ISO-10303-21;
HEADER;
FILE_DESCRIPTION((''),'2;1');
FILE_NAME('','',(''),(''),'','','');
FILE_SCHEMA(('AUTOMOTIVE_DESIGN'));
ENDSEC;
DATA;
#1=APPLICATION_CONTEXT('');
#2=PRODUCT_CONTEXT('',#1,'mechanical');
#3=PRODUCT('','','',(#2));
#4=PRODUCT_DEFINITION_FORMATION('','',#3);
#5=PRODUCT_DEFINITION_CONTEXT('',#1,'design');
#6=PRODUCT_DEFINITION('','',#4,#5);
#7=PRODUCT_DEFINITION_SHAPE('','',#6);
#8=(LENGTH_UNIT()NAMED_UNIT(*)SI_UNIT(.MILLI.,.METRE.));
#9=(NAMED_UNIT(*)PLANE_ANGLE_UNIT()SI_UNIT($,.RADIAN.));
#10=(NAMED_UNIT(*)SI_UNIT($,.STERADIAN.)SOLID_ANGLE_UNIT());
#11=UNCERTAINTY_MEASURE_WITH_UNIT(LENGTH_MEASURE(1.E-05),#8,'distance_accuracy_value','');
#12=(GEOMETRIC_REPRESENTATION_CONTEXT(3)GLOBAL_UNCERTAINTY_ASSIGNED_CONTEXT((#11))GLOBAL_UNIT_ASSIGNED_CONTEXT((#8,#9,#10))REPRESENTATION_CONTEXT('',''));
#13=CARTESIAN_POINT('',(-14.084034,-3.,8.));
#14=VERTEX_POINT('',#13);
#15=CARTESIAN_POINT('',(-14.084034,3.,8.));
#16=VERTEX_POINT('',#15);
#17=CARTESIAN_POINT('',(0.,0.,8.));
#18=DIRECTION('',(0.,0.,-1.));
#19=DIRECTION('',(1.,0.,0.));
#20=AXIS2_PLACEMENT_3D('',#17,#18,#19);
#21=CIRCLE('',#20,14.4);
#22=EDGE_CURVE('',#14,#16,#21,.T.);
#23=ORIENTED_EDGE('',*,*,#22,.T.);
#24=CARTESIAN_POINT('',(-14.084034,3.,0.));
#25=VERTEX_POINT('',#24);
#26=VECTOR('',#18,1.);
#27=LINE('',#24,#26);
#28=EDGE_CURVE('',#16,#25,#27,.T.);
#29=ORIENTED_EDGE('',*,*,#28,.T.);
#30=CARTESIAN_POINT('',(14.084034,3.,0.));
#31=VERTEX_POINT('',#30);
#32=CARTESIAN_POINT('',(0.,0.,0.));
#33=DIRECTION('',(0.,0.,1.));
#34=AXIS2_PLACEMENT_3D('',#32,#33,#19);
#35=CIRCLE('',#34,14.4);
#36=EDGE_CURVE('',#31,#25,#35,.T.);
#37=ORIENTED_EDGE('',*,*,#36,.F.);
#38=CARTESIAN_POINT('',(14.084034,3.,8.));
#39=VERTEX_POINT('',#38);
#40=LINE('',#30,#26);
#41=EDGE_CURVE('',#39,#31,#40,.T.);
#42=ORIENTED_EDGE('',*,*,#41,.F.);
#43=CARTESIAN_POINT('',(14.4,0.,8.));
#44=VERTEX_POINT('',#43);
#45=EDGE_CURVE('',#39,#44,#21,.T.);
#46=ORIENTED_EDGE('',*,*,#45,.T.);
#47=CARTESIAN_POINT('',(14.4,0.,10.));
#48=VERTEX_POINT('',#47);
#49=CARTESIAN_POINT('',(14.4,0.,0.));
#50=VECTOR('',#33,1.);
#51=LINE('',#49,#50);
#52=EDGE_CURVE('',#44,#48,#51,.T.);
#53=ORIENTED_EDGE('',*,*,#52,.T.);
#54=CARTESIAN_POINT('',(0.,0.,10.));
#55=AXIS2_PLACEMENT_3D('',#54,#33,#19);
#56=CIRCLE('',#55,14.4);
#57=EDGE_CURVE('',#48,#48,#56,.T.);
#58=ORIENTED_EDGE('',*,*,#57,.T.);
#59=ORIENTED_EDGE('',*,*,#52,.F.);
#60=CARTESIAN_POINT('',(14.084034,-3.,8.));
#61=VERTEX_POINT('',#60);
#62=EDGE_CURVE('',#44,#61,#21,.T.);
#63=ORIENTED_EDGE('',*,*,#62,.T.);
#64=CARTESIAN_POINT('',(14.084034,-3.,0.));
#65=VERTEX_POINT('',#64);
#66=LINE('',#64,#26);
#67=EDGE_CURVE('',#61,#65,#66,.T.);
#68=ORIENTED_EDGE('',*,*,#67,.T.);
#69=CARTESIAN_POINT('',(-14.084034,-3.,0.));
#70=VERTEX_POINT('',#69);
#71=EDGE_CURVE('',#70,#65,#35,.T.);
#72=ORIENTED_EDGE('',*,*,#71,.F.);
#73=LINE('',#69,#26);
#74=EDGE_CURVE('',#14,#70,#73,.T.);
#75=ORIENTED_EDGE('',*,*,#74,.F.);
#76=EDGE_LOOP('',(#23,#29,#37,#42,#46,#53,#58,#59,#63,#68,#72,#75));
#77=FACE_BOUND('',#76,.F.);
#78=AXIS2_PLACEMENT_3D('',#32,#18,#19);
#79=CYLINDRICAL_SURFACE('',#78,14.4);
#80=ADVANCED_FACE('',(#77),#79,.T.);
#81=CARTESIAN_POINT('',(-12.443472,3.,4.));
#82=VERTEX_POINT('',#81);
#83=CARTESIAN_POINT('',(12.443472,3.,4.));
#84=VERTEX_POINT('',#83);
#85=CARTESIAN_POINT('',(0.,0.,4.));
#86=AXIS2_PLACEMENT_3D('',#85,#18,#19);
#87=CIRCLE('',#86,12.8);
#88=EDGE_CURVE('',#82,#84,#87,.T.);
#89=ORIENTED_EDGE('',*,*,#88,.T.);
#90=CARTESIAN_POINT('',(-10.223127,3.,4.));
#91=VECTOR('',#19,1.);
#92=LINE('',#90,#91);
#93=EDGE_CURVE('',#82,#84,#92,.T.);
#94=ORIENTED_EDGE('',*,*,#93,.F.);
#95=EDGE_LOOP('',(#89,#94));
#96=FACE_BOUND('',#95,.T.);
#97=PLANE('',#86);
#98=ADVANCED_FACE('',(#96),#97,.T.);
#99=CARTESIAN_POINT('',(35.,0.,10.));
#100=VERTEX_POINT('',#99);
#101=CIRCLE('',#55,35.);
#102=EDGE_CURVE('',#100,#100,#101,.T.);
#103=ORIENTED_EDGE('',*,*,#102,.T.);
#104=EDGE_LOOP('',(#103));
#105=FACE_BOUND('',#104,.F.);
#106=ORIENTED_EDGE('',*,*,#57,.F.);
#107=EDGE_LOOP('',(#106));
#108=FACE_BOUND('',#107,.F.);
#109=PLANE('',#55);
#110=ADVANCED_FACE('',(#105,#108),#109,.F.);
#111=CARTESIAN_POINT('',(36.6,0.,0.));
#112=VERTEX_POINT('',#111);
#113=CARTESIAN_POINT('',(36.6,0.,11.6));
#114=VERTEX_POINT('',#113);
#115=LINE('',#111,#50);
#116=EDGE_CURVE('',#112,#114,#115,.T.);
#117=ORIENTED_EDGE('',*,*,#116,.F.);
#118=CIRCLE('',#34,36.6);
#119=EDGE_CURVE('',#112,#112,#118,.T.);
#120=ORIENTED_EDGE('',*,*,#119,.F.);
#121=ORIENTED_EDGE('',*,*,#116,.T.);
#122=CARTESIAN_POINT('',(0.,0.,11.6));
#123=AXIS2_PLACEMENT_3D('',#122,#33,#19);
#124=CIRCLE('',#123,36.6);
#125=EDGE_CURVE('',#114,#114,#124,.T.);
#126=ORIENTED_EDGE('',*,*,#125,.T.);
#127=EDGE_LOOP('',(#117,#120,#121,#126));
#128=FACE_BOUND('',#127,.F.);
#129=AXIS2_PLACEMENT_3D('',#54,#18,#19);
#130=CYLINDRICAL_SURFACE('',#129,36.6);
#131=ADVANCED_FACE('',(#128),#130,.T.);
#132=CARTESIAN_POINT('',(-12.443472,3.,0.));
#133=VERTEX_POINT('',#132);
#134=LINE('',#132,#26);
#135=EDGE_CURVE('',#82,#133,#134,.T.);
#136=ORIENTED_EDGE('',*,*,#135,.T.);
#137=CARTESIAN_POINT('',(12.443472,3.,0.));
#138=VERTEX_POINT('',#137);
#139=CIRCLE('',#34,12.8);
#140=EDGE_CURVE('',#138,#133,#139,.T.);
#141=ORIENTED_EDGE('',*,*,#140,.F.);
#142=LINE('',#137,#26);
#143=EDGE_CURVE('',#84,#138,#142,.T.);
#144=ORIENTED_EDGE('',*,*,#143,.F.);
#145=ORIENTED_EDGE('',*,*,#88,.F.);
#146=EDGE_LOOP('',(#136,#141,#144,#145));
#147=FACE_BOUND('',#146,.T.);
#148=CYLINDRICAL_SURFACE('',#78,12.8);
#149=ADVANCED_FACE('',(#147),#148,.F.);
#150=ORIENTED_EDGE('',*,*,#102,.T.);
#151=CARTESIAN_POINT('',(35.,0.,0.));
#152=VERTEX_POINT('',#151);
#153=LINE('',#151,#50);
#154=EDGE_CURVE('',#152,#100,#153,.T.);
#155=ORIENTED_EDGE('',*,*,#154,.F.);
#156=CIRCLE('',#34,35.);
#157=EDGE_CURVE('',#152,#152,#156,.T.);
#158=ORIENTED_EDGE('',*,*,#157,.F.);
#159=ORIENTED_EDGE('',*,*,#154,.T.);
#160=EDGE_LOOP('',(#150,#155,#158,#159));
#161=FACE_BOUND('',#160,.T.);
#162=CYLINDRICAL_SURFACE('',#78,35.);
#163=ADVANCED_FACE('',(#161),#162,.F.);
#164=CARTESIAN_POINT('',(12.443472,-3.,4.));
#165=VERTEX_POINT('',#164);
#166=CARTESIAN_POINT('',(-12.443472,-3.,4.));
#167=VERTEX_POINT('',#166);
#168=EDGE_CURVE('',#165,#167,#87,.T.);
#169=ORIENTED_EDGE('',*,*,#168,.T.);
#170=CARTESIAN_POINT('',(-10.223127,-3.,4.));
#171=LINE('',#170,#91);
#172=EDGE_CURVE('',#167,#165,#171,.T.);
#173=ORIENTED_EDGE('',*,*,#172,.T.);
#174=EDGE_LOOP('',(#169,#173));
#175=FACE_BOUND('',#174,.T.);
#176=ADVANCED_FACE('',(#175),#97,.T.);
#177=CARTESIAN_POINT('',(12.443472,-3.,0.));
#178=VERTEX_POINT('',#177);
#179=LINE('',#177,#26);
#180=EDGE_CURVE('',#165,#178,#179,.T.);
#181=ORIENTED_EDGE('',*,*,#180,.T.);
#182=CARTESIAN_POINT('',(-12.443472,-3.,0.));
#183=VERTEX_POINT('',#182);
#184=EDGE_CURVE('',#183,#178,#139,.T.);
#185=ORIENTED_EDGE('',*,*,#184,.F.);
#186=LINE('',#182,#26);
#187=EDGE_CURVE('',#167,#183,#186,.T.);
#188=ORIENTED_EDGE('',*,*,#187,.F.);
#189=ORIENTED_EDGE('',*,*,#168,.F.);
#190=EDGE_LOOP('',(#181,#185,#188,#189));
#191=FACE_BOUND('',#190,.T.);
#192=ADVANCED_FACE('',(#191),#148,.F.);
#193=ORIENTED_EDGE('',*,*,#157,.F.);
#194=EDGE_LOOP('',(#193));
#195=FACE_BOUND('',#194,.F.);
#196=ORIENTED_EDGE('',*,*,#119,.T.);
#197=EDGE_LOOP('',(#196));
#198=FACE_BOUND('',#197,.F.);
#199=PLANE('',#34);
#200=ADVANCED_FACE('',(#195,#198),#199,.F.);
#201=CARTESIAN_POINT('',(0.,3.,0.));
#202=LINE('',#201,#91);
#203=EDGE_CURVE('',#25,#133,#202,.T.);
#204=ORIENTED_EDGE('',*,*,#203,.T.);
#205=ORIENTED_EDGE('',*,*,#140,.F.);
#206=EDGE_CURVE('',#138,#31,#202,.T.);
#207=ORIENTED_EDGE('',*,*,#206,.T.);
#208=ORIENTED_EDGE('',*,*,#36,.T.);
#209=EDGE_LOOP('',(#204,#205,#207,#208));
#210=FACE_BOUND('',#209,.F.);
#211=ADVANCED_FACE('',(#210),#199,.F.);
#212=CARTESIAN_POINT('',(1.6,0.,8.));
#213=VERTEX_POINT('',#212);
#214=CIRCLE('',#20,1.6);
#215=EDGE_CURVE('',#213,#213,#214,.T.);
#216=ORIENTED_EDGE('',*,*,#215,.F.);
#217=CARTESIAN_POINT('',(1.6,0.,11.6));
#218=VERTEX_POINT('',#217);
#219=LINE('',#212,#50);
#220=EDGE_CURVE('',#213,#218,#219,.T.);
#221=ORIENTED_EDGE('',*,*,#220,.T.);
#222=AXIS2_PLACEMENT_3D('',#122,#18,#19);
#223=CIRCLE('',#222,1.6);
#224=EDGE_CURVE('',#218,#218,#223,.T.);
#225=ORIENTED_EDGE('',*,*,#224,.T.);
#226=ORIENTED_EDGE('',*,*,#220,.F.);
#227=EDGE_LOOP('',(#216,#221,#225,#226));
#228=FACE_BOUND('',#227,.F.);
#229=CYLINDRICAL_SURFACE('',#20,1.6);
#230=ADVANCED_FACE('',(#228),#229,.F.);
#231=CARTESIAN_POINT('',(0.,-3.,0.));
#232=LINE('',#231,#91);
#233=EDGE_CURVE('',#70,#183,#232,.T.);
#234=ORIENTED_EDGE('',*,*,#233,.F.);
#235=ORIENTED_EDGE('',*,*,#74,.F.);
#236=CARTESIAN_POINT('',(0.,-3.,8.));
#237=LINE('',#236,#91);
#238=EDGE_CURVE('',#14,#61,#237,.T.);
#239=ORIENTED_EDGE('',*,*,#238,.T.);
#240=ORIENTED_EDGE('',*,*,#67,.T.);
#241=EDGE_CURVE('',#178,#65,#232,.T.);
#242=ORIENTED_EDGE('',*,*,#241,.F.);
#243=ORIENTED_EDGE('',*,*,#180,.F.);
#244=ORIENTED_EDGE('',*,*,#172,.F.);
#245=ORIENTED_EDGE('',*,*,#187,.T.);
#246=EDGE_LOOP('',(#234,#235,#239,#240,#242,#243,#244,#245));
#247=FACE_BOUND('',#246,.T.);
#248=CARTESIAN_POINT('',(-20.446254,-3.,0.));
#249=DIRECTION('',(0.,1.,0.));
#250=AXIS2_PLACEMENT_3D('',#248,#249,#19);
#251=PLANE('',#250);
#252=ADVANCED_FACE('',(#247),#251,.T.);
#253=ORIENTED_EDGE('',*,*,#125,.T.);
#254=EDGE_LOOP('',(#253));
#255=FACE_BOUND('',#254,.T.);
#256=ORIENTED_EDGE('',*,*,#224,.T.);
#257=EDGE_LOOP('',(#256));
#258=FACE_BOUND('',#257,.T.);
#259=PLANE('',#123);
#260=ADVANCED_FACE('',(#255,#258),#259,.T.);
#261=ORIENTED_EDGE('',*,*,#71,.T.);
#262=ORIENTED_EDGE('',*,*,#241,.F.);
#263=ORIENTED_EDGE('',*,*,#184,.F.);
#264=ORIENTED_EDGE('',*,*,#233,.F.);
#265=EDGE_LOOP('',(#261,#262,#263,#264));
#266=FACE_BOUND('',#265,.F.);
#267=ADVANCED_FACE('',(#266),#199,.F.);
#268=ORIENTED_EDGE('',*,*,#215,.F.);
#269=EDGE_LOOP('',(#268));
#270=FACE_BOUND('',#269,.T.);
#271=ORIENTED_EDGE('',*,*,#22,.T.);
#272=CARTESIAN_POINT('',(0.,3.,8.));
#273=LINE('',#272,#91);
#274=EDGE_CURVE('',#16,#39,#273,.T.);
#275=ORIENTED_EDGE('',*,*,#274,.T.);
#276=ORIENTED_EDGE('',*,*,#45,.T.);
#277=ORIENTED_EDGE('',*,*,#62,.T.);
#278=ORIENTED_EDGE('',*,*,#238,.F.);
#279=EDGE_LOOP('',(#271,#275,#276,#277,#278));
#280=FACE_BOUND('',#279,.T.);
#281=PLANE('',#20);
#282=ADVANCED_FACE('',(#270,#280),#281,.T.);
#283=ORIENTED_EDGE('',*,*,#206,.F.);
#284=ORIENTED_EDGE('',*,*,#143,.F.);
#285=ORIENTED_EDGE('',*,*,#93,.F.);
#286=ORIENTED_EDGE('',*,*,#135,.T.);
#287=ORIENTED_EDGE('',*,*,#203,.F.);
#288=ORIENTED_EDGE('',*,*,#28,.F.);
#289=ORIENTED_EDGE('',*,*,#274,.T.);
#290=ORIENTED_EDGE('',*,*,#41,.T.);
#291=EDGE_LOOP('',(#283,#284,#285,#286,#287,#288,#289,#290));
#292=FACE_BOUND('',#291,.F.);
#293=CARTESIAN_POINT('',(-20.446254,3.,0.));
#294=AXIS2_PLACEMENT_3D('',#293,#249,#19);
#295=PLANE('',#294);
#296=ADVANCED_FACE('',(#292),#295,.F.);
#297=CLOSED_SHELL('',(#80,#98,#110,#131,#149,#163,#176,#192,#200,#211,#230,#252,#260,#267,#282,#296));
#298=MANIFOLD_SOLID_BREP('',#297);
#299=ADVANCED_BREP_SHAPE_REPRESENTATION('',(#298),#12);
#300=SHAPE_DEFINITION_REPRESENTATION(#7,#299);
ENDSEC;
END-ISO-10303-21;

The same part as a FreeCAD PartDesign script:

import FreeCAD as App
import Part
import Sketcher
from FreeCAD import Vector
Q = App.Units.Quantity

doc = App.newDocument("Part")
params = doc.addObject("Spreadsheet::Sheet", "Params")
for row, (alias, value) in enumerate([
    ("sketch1_diameter", "70 mm"),
    ("sketch1_diameter2", "73.2 mm"),
    ("sketch1_diameter3", "28.8 mm"),
    ("sketch1_diameter4", "25.6 mm"),
    ("pad1_length", "10 mm"),
    ("sketch2_diameter", "73.2 mm"),
    ("pad2_length", "1.6 mm"),
    ("sketch3_diameter", "25.6 mm"),
    ("pad3_length", "6 mm"),
    ("sketch4_height", "6 mm"),
    ("pocket1_length", "8 mm"),
    ("sketch5_diameter", "3.2 mm"),
    ("pocket2_length", "25 mm"),
], start=1):
    params.set(f"A{row}", alias)
    params.set(f"B{row}", "=" + value)
    params.setAlias(f"B{row}", alias)

body = doc.addObject("PartDesign::Body", "Body")
body.AllowCompound = True

sketch1 = body.newObject("Sketcher::SketchObject", "Sketch")
sketch1.AttachmentSupport = (doc.getObject("XY_Plane"), [""])
sketch1.MapMode = "FlatFace"
sketch1.addGeometry([
    Part.Circle(Vector(0, 0, 0), Vector(0, 0, 1), 37),
    Part.Circle(Vector(0, 0, 0), Vector(0, 0, 1), 35),
    Part.Circle(Vector(0, 0, 0), Vector(0, 0, 1), 14),
    Part.Circle(Vector(0, 0, 0), Vector(0, 0, 1), 13),
], False)
sketch1.addConstraint([
    Sketcher.Constraint("Coincident", 0, 3, -1, 1),
    Sketcher.Constraint("Coincident", 1, 3, -1, 1),
    Sketcher.Constraint("Coincident", 2, 3, -1, 1),
    Sketcher.Constraint("Coincident", 3, 3, -1, 1),
    Sketcher.Constraint("Diameter", 1, Q("70 mm")),
    Sketcher.Constraint("Diameter", 0, Q("73.2 mm")),
    Sketcher.Constraint("Diameter", 2, Q("28.8 mm")),
    Sketcher.Constraint("Diameter", 3, Q("25.6 mm")),
])
sketch1.setExpression("Constraints[4]", "Params.sketch1_diameter")
sketch1.setExpression("Constraints[5]", "Params.sketch1_diameter2")
sketch1.setExpression("Constraints[6]", "Params.sketch1_diameter3")
sketch1.setExpression("Constraints[7]", "Params.sketch1_diameter4")
pad1 = body.newObject("PartDesign::Pad", "Pad")
pad1.Profile = sketch1
pad1.setExpression("Length", "Params.pad1_length")

sketch2 = body.newObject("Sketcher::SketchObject", "Sketch001")
sketch2.AttachmentSupport = (doc.getObject("XY_Plane"), [""])
sketch2.MapMode = "FlatFace"
sketch2.AttachmentOffset = App.Placement(Vector(0, 0, 10), App.Rotation())
sketch2.addGeometry(Part.Circle(Vector(0, 0, 0), Vector(0, 0, 1), 37), False)
sketch2.addConstraint([
    Sketcher.Constraint("Coincident", 0, 3, -1, 1),
    Sketcher.Constraint("Diameter", 0, Q("73.2 mm")),
])
sketch2.setExpression("Constraints[1]", "Params.sketch2_diameter")
pad2 = body.newObject("PartDesign::Pad", "Pad001")
pad2.Profile = sketch2
pad2.setExpression("Length", "Params.pad2_length")

sketch3 = body.newObject("Sketcher::SketchObject", "Sketch002")
sketch3.AttachmentSupport = (doc.getObject("XY_Plane"), [""])
sketch3.MapMode = "FlatFace"
sketch3.AttachmentOffset = App.Placement(Vector(0, 0, 10), App.Rotation())
sketch3.addGeometry(Part.Circle(Vector(0, 0, 0), Vector(0, 0, 1), 13), False)
sketch3.addConstraint([
    Sketcher.Constraint("Coincident", 0, 3, -1, 1),
    Sketcher.Constraint("Diameter", 0, Q("25.6 mm")),
])
sketch3.setExpression("Constraints[1]", "Params.sketch3_diameter")
pad3 = body.newObject("PartDesign::Pad", "Pad002")
pad3.Profile = sketch3
pad3.setExpression("Length", "Params.pad3_length")
pad3.Reversed = True

sketch4 = body.newObject("Sketcher::SketchObject", "Sketch003")
sketch4.AttachmentSupport = (doc.getObject("XY_Plane"), [""])
sketch4.MapMode = "FlatFace"
sketch4.addGeometry([
    Part.LineSegment(Vector(-20, -3, 0), Vector(-20, 3, 0)),
    Part.LineSegment(Vector(-20, 3, 0), Vector(20, 3, 0)),
    Part.LineSegment(Vector(20, 3, 0), Vector(20, -3, 0)),
    Part.LineSegment(Vector(20, -3, 0), Vector(-20, -3, 0)),
], False)
sketch4.addConstraint([
    Sketcher.Constraint("Coincident", 0, 2, 1, 1),
    Sketcher.Constraint("Coincident", 1, 2, 2, 1),
    Sketcher.Constraint("Coincident", 2, 2, 3, 1),
    Sketcher.Constraint("Coincident", 3, 2, 0, 1),
    Sketcher.Constraint("Vertical", 0),
    Sketcher.Constraint("Horizontal", 1),
    Sketcher.Constraint("Vertical", 2),
    Sketcher.Constraint("Horizontal", 3),
    Sketcher.Constraint("Symmetric", 0, 2, 2, 2, -1, 1),
    Sketcher.Constraint("DistanceY", 0, 1, 0, 2, Q("6 mm")),
    Sketcher.Constraint("DistanceX", 1, 1, 1, 2, Q("40.892508 mm")),
])
sketch4.setExpression("Constraints[9]", "Params.sketch4_height")
pocket1 = body.newObject("PartDesign::Pocket", "Pocket")
pocket1.Profile = sketch4
pocket1.setExpression("Length", "Params.pocket1_length")
pocket1.Reversed = True

sketch5 = body.newObject("Sketcher::SketchObject", "Sketch004")
sketch5.AttachmentSupport = (doc.getObject("XY_Plane"), [""])
sketch5.MapMode = "FlatFace"
sketch5.AttachmentOffset = App.Placement(Vector(0, 0, 8), App.Rotation())
sketch5.addGeometry(Part.Circle(Vector(0, 0, 0), Vector(0, 0, 1), 1.6), False)
sketch5.addConstraint([
    Sketcher.Constraint("Coincident", 0, 3, -1, 1),
    Sketcher.Constraint("Diameter", 0, Q("3.2 mm")),
])
sketch5.setExpression("Constraints[1]", "Params.sketch5_diameter")
pocket2 = body.newObject("PartDesign::Pocket", "Pocket001")
pocket2.Profile = sketch5
pocket2.setExpression("Length", "Params.pocket2_length")
pocket2.Reversed = True

doc.recompute()
